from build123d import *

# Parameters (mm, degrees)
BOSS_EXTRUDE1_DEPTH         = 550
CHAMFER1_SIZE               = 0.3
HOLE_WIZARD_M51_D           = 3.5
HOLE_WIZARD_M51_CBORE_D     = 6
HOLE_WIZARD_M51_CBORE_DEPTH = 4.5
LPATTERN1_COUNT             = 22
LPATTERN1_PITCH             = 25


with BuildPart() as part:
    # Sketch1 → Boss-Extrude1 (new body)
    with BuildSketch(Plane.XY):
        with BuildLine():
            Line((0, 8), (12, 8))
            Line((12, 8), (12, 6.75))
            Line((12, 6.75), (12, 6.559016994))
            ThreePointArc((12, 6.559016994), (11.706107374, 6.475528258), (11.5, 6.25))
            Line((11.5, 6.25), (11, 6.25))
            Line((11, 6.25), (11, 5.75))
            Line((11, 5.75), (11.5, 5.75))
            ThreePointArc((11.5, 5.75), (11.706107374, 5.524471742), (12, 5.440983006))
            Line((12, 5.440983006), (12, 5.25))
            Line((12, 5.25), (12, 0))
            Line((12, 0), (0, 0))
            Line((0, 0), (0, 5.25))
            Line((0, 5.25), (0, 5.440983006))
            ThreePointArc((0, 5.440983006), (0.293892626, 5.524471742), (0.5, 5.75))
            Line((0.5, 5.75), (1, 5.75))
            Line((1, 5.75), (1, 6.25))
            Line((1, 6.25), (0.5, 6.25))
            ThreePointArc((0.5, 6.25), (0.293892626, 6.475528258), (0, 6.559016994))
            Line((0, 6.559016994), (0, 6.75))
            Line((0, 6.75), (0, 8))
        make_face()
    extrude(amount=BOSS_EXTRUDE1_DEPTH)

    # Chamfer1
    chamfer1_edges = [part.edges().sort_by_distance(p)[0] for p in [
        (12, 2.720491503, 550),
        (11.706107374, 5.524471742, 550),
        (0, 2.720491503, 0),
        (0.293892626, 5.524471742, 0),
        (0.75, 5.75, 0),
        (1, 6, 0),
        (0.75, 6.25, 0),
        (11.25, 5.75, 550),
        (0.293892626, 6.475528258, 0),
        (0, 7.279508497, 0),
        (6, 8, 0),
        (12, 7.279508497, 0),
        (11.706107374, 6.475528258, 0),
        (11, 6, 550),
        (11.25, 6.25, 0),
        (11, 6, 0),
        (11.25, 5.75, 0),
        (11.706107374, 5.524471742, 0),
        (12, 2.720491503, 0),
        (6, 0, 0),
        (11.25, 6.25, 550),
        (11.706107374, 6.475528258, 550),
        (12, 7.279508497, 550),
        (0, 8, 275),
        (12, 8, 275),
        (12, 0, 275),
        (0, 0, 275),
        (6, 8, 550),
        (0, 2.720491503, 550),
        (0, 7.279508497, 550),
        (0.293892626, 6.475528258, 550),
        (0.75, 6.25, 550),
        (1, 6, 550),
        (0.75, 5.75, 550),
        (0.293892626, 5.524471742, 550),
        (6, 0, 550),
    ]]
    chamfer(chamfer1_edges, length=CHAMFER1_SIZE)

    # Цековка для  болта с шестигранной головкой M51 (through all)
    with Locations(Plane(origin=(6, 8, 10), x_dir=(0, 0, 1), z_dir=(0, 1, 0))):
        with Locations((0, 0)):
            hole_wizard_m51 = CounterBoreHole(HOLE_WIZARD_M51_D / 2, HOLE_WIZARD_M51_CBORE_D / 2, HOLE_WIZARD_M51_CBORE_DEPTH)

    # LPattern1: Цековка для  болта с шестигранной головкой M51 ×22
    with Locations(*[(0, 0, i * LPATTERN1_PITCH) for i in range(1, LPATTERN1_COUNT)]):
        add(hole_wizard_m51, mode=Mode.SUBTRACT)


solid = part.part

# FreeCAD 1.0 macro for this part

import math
import FreeCAD as App
import Part
import Sketcher


def edges_at(feature, points):
    """Names of the edges that pass closest to the given points."""
    edges = feature.Shape.Edges
    near = lambda p: min(range(len(edges)), key=lambda i: edges[i].distToShape(Part.Vertex(*p))[0])
    return sorted({f"Edge{near(p) + 1}" for p in points})

doc = App.newDocument("Part")
body = doc.addObject("PartDesign::Body", "Body")

# Sketch on XY plane
sketch1 = body.newObject("Sketcher::SketchObject", "Sketch")
sketch1.AttachmentSupport = (doc.getObject("XY_Plane"), [""])
sketch1.MapMode = "FlatFace"
sketch1.addGeometry([
    Part.LineSegment(App.Vector(12, 8, 0), App.Vector(0, 8, 0)),  # 0
    Part.LineSegment(App.Vector(0, 8, 0), App.Vector(0, 6.6, 0)),  # 1
    Part.ArcOfCircle(Part.Circle(App.Vector(0, 6, 0), App.Vector(0, 0, 1), 0.6), math.radians(27), math.radians(90)),  # 2
    Part.LineSegment(App.Vector(0.5, 6.2, 0), App.Vector(1, 6.2, 0)),  # 3
    Part.LineSegment(App.Vector(1, 6.2, 0), App.Vector(1, 5.8, 0)),  # 4
    Part.LineSegment(App.Vector(1, 5.8, 0), App.Vector(0.5, 5.8, 0)),  # 5
    Part.ArcOfCircle(Part.Circle(App.Vector(0, 6, 0), App.Vector(0, 0, 1), 0.6), math.radians(-90), math.radians(-27)),  # 6
    Part.LineSegment(App.Vector(0, 5.4, 0), App.Vector(0, 0, 0)),  # 7
    Part.LineSegment(App.Vector(0, 0, 0), App.Vector(12, 0, 0)),  # 8
    Part.LineSegment(App.Vector(12, 0, 0), App.Vector(12, 5.4, 0)),  # 9
    Part.ArcOfCircle(Part.Circle(App.Vector(12, 6, 0), App.Vector(0, 0, 1), 0.6), math.radians(-153), math.radians(-90)),  # 10
    Part.LineSegment(App.Vector(11.5, 5.8, 0), App.Vector(11, 5.8, 0)),  # 11
    Part.LineSegment(App.Vector(11, 5.8, 0), App.Vector(11, 6.2, 0)),  # 12
    Part.LineSegment(App.Vector(11, 6.2, 0), App.Vector(11.5, 6.2, 0)),  # 13
    Part.ArcOfCircle(Part.Circle(App.Vector(12, 6, 0), App.Vector(0, 0, 1), 0.6), math.radians(90), math.radians(153)),  # 14
    Part.LineSegment(App.Vector(12, 6.6, 0), App.Vector(12, 8, 0)),  # 15
], False)
sketch1.addConstraint([
    Sketcher.Constraint("Coincident", 0, 2, 1, 1),
    Sketcher.Constraint("Coincident", 1, 2, 2, 2),
    Sketcher.Constraint("Coincident", 2, 1, 3, 1),
    Sketcher.Constraint("Coincident", 3, 2, 4, 1),
    Sketcher.Constraint("Coincident", 4, 2, 5, 1),
    Sketcher.Constraint("Coincident", 5, 2, 6, 2),
    Sketcher.Constraint("Coincident", 6, 1, 7, 1),
    Sketcher.Constraint("Coincident", 7, 2, 8, 1),
    Sketcher.Constraint("Coincident", 8, 2, 9, 1),
    Sketcher.Constraint("Coincident", 9, 2, 10, 2),
    Sketcher.Constraint("Coincident", 10, 1, 11, 1),
    Sketcher.Constraint("Coincident", 11, 2, 12, 1),
    Sketcher.Constraint("Coincident", 12, 2, 13, 1),
    Sketcher.Constraint("Coincident", 13, 2, 14, 2),
    Sketcher.Constraint("Coincident", 14, 1, 15, 1),
    Sketcher.Constraint("Coincident", 15, 2, 0, 1),
    Sketcher.Constraint("Horizontal", 0),
    Sketcher.Constraint("Vertical", 1),
    Sketcher.Constraint("Horizontal", 3),
    Sketcher.Constraint("Vertical", 4),
    Sketcher.Constraint("Horizontal", 5),
    Sketcher.Constraint("Vertical", 7),
    Sketcher.Constraint("Horizontal", 8),
    Sketcher.Constraint("Vertical", 9),
    Sketcher.Constraint("Horizontal", 11),
    Sketcher.Constraint("Vertical", 12),
    Sketcher.Constraint("Horizontal", 13),
    Sketcher.Constraint("Vertical", 15),
    Sketcher.Constraint("Coincident", 7, 2, -1, 1),
    Sketcher.Constraint("Coincident", 6, 3, 2, 3),
    Sketcher.Constraint("Coincident", 14, 3, 10, 3),
    Sketcher.Constraint("Equal", 2, 6),
    Sketcher.Constraint("Equal", 6, 10),
    Sketcher.Constraint("Equal", 10, 14),
    Sketcher.Constraint("PointOnObject", 2, 3, -2),
    Sketcher.Constraint("PointOnObject", 0, 2, -2),
    Sketcher.Constraint("Horizontal", 6, 3, 10, 3),
    Sketcher.Constraint("Horizontal", 5, 2, 10, 1),
    Sketcher.Constraint("Horizontal", 3, 2, 12, 2),
    Sketcher.Constraint("Vertical", 2, 1, 5, 2),
    Sketcher.Constraint("Vertical", 14, 3, 8, 2),
    Sketcher.Constraint("Vertical", 9, 2, 14, 1),
    Sketcher.Constraint("Equal", 5, 11),
    Sketcher.Constraint("Equal", 13, 4),
    Sketcher.Constraint("DistanceX", 0, 2, 0, 1, 12.0),
    Sketcher.Constraint("DistanceX", 3, 1, 3, 2, 0.5),
    Sketcher.Constraint("DistanceY", -1, 1, 2, 3, 6.0),
    Sketcher.Constraint("DistanceY", -1, 1, 0, 2, 8.0),
    Sketcher.Constraint("DistanceX", -1, 1, 3, 2, 1.0),
])
pad1 = body.newObject("PartDesign::Pad", "Pad")
pad1.Profile = sketch1
pad1.Length = 550
doc.recompute()

chamfer = body.newObject("PartDesign::Chamfer", "Chamfer")
chamfer.Base = (pad1, edges_at(pad1, [
    (12, 2.72, 550),
    (11.706, 5.524, 550),
    (0, 2.72, 0),
    (0.294, 5.524, 0),
    (0.75, 5.75, 0),
    (1, 6, 0),
    (0.75, 6.25, 0),
    (11.25, 5.75, 550),
    (0.294, 6.476, 0),
    (0, 7.28, 0),
    (6, 8, 0),
    (12, 7.28, 0),
    (11.706, 6.476, 0),
    (11, 6, 550),
    (11.25, 6.25, 0),
    (11, 6, 0),
    (11.25, 5.75, 0),
    (11.706, 5.524, 0),
    (12, 2.72, 0),
    (6, 0, 0),
    (11.25, 6.25, 550),
    (11.706, 6.476, 550),
    (12, 7.28, 550),
    (0, 8, 275),
    (12, 8, 275),
    (12, 0, 275),
    (0, 0, 275),
    (6, 8, 550),
    (0, 2.72, 550),
    (0, 7.28, 550),
    (0.294, 6.476, 550),
    (0.75, 6.25, 550),
    (1, 6, 550),
    (0.75, 5.75, 550),
    (0.294, 5.524, 550),
    (6, 0, 550),
]))
chamfer.Size = 0.3

# Sketch on XZ plane
sketch2 = body.newObject("Sketcher::SketchObject", "Sketch001")
sketch2.AttachmentSupport = (doc.getObject("XZ_Plane"), [""])
sketch2.MapMode = "FlatFace"
sketch2.AttachmentOffset = App.Placement(App.Vector(0, 0, -8), App.Rotation())
sketch2.addGeometry(Part.Circle(App.Vector(6, 10, 0), App.Vector(0, 0, 1), 1.8), False)
sketch2.addConstraint([
    Sketcher.Constraint("Diameter", 0, 3.5),
    Sketcher.Constraint("DistanceX", -1, 1, 0, 3, 6.0),
    Sketcher.Constraint("DistanceY", -1, 1, 0, 3, 10.0),
])
doc.recompute()
hole = body.newObject("PartDesign::Hole", "Hole")
hole.Profile = sketch2
hole.ThreadType = "None"
hole.Diameter = 3.5
hole.DepthType = "ThroughAll"
hole.HoleCutType = "Counterbore"
hole.HoleCutDiameter = 6
hole.HoleCutDepth = 4.5
hole.Reversed = True
doc.recompute()

linearpattern = body.newObject("PartDesign::LinearPattern", "LinearPattern")
linearpattern.Originals = [hole]
linearpattern.Direction = (doc.getObject("Z_Axis"), [""])
linearpattern.Mode = "offset"
linearpattern.Offset = 25
linearpattern.Occurrences = 22
body.Tip = linearpattern

doc.recompute()
